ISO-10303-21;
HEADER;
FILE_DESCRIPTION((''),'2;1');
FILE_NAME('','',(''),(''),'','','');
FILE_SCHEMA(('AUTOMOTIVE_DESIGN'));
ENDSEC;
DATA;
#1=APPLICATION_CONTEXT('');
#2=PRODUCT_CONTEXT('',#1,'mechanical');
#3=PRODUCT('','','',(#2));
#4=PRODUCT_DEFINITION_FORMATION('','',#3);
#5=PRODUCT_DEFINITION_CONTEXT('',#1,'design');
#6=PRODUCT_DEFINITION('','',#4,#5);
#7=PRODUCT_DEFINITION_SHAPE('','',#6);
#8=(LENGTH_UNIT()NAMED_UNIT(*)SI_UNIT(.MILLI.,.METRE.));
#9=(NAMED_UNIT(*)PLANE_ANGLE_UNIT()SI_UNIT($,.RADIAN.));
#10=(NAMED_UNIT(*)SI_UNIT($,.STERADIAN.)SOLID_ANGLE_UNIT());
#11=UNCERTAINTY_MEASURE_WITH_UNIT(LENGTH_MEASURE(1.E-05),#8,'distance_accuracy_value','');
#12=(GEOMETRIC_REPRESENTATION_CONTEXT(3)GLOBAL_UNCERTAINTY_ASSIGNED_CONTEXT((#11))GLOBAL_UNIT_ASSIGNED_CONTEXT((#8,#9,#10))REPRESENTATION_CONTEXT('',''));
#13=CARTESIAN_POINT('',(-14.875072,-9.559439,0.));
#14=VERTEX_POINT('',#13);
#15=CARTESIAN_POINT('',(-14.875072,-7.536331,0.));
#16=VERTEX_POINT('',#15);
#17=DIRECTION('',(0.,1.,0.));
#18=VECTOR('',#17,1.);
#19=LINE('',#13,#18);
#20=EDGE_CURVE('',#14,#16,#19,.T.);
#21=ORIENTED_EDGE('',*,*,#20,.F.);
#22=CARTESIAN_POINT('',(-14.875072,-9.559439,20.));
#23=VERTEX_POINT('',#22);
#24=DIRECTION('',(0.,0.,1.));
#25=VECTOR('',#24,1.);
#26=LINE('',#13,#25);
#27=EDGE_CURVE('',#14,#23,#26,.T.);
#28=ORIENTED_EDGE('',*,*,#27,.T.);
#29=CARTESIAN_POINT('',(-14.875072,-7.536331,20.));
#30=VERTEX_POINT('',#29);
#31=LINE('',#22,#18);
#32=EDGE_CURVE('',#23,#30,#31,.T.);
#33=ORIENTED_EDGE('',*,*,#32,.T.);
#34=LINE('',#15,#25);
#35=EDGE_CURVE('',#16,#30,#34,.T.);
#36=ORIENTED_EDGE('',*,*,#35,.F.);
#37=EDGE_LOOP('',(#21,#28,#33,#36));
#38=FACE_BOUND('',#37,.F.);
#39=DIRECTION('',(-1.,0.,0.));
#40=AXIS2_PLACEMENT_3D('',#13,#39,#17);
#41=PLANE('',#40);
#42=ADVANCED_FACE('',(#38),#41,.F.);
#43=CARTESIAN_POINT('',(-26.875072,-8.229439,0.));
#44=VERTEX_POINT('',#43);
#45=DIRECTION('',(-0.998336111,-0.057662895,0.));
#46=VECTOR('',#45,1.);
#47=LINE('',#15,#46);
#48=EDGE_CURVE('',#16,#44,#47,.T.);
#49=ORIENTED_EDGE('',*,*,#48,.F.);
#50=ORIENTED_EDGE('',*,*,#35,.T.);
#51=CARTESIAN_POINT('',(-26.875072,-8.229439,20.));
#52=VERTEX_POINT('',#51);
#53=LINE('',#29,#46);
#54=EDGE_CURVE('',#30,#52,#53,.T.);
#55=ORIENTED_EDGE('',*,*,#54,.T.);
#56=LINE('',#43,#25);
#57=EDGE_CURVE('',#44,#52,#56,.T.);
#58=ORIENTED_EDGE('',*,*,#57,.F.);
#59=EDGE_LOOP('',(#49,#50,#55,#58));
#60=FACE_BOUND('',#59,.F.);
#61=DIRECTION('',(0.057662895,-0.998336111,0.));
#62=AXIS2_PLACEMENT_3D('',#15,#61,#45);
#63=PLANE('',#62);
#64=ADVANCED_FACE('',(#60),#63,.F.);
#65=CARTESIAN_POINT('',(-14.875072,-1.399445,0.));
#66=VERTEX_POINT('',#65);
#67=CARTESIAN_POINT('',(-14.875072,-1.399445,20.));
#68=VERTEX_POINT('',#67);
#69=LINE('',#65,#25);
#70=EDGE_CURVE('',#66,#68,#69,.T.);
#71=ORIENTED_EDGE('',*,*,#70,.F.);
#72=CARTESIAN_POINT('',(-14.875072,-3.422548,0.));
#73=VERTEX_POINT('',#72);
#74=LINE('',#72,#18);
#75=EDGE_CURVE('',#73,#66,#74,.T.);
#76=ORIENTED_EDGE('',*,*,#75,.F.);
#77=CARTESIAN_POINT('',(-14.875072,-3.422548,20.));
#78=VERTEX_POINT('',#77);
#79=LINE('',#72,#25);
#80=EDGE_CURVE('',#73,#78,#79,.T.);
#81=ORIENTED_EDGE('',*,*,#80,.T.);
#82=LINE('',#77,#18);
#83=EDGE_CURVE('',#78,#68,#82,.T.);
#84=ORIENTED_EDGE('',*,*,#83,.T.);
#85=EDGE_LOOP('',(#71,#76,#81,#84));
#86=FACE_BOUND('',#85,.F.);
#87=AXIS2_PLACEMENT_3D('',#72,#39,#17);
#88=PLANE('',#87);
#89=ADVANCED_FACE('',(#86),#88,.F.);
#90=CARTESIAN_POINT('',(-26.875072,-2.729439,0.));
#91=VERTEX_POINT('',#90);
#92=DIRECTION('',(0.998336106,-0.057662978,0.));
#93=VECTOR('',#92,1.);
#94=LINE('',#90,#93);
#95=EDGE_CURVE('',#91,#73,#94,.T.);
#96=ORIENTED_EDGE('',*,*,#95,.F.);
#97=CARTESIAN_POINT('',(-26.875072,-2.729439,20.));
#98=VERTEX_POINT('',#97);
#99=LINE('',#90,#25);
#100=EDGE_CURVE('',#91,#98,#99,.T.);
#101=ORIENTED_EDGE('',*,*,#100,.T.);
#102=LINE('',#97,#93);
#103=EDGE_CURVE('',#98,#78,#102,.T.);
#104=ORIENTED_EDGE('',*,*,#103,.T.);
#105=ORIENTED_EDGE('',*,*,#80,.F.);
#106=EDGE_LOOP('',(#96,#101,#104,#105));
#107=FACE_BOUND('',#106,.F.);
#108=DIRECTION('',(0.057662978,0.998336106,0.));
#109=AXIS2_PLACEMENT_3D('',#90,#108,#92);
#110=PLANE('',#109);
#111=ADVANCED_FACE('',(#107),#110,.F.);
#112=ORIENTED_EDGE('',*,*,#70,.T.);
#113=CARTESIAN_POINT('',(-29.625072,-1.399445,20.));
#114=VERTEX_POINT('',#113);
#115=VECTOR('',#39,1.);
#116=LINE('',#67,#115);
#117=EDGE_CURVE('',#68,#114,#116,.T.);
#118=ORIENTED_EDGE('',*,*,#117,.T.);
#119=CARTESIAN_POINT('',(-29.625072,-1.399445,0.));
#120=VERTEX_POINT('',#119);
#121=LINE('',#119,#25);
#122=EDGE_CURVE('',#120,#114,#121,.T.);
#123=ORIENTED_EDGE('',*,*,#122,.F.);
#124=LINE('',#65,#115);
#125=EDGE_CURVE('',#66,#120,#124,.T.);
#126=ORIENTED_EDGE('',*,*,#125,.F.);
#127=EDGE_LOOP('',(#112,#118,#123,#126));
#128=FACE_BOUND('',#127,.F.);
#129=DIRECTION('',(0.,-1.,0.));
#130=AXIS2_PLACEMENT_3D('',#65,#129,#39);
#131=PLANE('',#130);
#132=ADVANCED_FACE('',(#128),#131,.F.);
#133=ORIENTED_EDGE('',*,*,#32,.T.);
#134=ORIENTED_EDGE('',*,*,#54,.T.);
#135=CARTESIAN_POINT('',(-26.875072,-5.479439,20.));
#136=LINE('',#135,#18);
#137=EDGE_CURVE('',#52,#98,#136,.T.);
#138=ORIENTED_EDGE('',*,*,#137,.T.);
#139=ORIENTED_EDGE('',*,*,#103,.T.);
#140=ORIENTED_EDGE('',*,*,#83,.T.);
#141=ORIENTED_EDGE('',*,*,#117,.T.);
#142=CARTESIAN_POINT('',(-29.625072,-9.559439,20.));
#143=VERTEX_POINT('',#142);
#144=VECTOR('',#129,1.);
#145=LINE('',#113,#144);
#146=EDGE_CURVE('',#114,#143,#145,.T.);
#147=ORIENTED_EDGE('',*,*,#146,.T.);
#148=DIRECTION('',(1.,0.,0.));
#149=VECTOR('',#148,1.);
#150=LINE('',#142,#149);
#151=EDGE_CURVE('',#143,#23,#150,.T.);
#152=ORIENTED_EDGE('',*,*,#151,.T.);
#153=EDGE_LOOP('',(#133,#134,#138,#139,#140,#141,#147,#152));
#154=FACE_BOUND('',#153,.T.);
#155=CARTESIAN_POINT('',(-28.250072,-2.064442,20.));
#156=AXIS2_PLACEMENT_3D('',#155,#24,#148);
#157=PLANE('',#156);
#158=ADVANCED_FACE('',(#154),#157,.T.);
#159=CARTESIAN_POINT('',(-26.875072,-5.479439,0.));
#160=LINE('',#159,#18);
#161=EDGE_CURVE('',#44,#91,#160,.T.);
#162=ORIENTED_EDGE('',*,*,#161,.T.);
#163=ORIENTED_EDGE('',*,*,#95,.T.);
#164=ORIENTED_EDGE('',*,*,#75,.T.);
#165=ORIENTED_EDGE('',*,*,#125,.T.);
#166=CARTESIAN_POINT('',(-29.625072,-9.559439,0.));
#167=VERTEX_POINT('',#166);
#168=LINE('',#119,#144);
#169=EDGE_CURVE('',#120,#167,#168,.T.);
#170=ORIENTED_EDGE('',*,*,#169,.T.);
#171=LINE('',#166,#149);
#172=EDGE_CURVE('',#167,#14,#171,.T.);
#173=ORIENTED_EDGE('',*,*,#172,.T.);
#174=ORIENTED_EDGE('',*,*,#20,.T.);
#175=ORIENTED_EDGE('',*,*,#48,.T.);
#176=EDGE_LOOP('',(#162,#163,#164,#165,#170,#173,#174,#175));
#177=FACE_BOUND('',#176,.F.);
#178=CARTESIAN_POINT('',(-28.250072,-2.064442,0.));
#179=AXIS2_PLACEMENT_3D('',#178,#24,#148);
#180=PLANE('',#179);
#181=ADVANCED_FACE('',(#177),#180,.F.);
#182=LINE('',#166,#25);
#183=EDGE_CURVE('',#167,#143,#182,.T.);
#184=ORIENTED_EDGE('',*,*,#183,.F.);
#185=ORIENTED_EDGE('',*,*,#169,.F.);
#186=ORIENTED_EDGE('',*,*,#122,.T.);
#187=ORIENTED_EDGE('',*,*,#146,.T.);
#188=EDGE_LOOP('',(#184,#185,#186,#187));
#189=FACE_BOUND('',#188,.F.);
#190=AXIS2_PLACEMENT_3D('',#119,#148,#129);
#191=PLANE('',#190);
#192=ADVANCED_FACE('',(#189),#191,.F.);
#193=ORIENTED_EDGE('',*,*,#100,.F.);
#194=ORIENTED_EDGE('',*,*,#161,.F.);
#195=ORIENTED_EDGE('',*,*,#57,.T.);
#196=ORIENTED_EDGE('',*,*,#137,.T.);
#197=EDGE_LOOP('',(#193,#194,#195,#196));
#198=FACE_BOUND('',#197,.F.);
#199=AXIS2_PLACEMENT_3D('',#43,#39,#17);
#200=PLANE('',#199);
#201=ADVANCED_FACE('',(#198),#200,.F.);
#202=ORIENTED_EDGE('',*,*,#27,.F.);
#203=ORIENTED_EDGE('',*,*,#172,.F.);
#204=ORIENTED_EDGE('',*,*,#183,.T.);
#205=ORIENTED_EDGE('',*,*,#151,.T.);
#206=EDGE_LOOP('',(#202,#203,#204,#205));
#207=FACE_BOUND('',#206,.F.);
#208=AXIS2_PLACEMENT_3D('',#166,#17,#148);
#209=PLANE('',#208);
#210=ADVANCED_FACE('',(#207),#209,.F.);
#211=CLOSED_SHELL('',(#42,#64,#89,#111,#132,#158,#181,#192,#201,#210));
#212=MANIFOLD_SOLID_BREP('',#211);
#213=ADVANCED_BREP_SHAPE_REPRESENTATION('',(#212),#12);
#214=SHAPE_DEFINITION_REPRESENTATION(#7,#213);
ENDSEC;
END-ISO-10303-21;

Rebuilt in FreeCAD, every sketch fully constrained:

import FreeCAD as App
import Part
import Sketcher

V = App.Vector

doc = App.newDocument("Part")
body = doc.addObject("PartDesign::Body", "Body")

# Sketch on XY plane
sketch1 = doc.addObject("Sketcher::SketchObject", "Sketch")
body.addObject(sketch1)
sketch1.AttachmentSupport = (doc.XY_Plane, [""])
sketch1.MapMode = "FlatFace"
sketch1.addGeometry(Part.LineSegment(V(-29.6, -1.4, 0), V(-29.6, -9.6, 0)), False)
sketch1.addGeometry(Part.LineSegment(V(-29.6, -9.6, 0), V(-14.9, -9.6, 0)), False)
sketch1.addGeometry(Part.LineSegment(V(-14.9, -9.6, 0), V(-14.9, -7.5, 0)), False)
sketch1.addGeometry(Part.LineSegment(V(-14.9, -7.5, 0), V(-26.9, -8.2, 0)), False)
sketch1.addGeometry(Part.LineSegment(V(-26.9, -8.2, 0), V(-26.9, -2.7, 0)), False)
sketch1.addGeometry(Part.LineSegment(V(-26.9, -2.7, 0), V(-14.9, -3.4, 0)), False)
sketch1.addGeometry(Part.LineSegment(V(-14.9, -3.4, 0), V(-14.9, -1.4, 0)), False)
sketch1.addGeometry(Part.LineSegment(V(-14.9, -1.4, 0), V(-29.6, -1.4, 0)), False)
sketch1.addConstraint(Sketcher.Constraint("Coincident", 0, 2, 1, 1))
sketch1.addConstraint(Sketcher.Constraint("Coincident", 1, 2, 2, 1))
sketch1.addConstraint(Sketcher.Constraint("Coincident", 2, 2, 3, 1))
sketch1.addConstraint(Sketcher.Constraint("Coincident", 3, 2, 4, 1))
sketch1.addConstraint(Sketcher.Constraint("Coincident", 4, 2, 5, 1))
sketch1.addConstraint(Sketcher.Constraint("Coincident", 5, 2, 6, 1))
sketch1.addConstraint(Sketcher.Constraint("Coincident", 6, 2, 7, 1))
sketch1.addConstraint(Sketcher.Constraint("Coincident", 7, 2, 0, 1))
sketch1.addConstraint(Sketcher.Constraint("Vertical", 0))
sketch1.addConstraint(Sketcher.Constraint("Horizontal", 1))
sketch1.addConstraint(Sketcher.Constraint("Vertical", 2))
sketch1.addConstraint(Sketcher.Constraint("Vertical", 4))
sketch1.addConstraint(Sketcher.Constraint("Vertical", 6))
sketch1.addConstraint(Sketcher.Constraint("Horizontal", 7))
sketch1.addConstraint(Sketcher.Constraint("Vertical", 2, 2, 5, 2))
sketch1.addConstraint(Sketcher.Constraint("Equal", 3, 5))
sketch1.addConstraint(Sketcher.Constraint("DistanceY", 4, 1, 4, 2, 5.5))
sketch1.addConstraint(Sketcher.Constraint("DistanceX", 3, 2, 2, 2, 12.0))
sketch1.addConstraint(Sketcher.Constraint("DistanceX", 1, 1, 1, 2, 14.75))
sketch1.addConstraint(Sketcher.Constraint("Distance", 3, 12.02))
sketch1.addConstraint(Sketcher.Constraint("DistanceY", 0, 2, 3, 2, 1.33))
sketch1.addConstraint(Sketcher.Constraint("DistanceY", 0, 2, 0, 1, 8.159994))
sketch1.addConstraint(Sketcher.Constraint("DistanceX", 0, 2, -1, 1, 29.625072))
sketch1.addConstraint(Sketcher.Constraint("DistanceY", 0, 2, -1, 1, 9.559439))
pad1 = doc.addObject("PartDesign::Pad", "Pad")
body.addObject(pad1)
pad1.Profile = sketch1
pad1.Length = 20

doc.recompute()
